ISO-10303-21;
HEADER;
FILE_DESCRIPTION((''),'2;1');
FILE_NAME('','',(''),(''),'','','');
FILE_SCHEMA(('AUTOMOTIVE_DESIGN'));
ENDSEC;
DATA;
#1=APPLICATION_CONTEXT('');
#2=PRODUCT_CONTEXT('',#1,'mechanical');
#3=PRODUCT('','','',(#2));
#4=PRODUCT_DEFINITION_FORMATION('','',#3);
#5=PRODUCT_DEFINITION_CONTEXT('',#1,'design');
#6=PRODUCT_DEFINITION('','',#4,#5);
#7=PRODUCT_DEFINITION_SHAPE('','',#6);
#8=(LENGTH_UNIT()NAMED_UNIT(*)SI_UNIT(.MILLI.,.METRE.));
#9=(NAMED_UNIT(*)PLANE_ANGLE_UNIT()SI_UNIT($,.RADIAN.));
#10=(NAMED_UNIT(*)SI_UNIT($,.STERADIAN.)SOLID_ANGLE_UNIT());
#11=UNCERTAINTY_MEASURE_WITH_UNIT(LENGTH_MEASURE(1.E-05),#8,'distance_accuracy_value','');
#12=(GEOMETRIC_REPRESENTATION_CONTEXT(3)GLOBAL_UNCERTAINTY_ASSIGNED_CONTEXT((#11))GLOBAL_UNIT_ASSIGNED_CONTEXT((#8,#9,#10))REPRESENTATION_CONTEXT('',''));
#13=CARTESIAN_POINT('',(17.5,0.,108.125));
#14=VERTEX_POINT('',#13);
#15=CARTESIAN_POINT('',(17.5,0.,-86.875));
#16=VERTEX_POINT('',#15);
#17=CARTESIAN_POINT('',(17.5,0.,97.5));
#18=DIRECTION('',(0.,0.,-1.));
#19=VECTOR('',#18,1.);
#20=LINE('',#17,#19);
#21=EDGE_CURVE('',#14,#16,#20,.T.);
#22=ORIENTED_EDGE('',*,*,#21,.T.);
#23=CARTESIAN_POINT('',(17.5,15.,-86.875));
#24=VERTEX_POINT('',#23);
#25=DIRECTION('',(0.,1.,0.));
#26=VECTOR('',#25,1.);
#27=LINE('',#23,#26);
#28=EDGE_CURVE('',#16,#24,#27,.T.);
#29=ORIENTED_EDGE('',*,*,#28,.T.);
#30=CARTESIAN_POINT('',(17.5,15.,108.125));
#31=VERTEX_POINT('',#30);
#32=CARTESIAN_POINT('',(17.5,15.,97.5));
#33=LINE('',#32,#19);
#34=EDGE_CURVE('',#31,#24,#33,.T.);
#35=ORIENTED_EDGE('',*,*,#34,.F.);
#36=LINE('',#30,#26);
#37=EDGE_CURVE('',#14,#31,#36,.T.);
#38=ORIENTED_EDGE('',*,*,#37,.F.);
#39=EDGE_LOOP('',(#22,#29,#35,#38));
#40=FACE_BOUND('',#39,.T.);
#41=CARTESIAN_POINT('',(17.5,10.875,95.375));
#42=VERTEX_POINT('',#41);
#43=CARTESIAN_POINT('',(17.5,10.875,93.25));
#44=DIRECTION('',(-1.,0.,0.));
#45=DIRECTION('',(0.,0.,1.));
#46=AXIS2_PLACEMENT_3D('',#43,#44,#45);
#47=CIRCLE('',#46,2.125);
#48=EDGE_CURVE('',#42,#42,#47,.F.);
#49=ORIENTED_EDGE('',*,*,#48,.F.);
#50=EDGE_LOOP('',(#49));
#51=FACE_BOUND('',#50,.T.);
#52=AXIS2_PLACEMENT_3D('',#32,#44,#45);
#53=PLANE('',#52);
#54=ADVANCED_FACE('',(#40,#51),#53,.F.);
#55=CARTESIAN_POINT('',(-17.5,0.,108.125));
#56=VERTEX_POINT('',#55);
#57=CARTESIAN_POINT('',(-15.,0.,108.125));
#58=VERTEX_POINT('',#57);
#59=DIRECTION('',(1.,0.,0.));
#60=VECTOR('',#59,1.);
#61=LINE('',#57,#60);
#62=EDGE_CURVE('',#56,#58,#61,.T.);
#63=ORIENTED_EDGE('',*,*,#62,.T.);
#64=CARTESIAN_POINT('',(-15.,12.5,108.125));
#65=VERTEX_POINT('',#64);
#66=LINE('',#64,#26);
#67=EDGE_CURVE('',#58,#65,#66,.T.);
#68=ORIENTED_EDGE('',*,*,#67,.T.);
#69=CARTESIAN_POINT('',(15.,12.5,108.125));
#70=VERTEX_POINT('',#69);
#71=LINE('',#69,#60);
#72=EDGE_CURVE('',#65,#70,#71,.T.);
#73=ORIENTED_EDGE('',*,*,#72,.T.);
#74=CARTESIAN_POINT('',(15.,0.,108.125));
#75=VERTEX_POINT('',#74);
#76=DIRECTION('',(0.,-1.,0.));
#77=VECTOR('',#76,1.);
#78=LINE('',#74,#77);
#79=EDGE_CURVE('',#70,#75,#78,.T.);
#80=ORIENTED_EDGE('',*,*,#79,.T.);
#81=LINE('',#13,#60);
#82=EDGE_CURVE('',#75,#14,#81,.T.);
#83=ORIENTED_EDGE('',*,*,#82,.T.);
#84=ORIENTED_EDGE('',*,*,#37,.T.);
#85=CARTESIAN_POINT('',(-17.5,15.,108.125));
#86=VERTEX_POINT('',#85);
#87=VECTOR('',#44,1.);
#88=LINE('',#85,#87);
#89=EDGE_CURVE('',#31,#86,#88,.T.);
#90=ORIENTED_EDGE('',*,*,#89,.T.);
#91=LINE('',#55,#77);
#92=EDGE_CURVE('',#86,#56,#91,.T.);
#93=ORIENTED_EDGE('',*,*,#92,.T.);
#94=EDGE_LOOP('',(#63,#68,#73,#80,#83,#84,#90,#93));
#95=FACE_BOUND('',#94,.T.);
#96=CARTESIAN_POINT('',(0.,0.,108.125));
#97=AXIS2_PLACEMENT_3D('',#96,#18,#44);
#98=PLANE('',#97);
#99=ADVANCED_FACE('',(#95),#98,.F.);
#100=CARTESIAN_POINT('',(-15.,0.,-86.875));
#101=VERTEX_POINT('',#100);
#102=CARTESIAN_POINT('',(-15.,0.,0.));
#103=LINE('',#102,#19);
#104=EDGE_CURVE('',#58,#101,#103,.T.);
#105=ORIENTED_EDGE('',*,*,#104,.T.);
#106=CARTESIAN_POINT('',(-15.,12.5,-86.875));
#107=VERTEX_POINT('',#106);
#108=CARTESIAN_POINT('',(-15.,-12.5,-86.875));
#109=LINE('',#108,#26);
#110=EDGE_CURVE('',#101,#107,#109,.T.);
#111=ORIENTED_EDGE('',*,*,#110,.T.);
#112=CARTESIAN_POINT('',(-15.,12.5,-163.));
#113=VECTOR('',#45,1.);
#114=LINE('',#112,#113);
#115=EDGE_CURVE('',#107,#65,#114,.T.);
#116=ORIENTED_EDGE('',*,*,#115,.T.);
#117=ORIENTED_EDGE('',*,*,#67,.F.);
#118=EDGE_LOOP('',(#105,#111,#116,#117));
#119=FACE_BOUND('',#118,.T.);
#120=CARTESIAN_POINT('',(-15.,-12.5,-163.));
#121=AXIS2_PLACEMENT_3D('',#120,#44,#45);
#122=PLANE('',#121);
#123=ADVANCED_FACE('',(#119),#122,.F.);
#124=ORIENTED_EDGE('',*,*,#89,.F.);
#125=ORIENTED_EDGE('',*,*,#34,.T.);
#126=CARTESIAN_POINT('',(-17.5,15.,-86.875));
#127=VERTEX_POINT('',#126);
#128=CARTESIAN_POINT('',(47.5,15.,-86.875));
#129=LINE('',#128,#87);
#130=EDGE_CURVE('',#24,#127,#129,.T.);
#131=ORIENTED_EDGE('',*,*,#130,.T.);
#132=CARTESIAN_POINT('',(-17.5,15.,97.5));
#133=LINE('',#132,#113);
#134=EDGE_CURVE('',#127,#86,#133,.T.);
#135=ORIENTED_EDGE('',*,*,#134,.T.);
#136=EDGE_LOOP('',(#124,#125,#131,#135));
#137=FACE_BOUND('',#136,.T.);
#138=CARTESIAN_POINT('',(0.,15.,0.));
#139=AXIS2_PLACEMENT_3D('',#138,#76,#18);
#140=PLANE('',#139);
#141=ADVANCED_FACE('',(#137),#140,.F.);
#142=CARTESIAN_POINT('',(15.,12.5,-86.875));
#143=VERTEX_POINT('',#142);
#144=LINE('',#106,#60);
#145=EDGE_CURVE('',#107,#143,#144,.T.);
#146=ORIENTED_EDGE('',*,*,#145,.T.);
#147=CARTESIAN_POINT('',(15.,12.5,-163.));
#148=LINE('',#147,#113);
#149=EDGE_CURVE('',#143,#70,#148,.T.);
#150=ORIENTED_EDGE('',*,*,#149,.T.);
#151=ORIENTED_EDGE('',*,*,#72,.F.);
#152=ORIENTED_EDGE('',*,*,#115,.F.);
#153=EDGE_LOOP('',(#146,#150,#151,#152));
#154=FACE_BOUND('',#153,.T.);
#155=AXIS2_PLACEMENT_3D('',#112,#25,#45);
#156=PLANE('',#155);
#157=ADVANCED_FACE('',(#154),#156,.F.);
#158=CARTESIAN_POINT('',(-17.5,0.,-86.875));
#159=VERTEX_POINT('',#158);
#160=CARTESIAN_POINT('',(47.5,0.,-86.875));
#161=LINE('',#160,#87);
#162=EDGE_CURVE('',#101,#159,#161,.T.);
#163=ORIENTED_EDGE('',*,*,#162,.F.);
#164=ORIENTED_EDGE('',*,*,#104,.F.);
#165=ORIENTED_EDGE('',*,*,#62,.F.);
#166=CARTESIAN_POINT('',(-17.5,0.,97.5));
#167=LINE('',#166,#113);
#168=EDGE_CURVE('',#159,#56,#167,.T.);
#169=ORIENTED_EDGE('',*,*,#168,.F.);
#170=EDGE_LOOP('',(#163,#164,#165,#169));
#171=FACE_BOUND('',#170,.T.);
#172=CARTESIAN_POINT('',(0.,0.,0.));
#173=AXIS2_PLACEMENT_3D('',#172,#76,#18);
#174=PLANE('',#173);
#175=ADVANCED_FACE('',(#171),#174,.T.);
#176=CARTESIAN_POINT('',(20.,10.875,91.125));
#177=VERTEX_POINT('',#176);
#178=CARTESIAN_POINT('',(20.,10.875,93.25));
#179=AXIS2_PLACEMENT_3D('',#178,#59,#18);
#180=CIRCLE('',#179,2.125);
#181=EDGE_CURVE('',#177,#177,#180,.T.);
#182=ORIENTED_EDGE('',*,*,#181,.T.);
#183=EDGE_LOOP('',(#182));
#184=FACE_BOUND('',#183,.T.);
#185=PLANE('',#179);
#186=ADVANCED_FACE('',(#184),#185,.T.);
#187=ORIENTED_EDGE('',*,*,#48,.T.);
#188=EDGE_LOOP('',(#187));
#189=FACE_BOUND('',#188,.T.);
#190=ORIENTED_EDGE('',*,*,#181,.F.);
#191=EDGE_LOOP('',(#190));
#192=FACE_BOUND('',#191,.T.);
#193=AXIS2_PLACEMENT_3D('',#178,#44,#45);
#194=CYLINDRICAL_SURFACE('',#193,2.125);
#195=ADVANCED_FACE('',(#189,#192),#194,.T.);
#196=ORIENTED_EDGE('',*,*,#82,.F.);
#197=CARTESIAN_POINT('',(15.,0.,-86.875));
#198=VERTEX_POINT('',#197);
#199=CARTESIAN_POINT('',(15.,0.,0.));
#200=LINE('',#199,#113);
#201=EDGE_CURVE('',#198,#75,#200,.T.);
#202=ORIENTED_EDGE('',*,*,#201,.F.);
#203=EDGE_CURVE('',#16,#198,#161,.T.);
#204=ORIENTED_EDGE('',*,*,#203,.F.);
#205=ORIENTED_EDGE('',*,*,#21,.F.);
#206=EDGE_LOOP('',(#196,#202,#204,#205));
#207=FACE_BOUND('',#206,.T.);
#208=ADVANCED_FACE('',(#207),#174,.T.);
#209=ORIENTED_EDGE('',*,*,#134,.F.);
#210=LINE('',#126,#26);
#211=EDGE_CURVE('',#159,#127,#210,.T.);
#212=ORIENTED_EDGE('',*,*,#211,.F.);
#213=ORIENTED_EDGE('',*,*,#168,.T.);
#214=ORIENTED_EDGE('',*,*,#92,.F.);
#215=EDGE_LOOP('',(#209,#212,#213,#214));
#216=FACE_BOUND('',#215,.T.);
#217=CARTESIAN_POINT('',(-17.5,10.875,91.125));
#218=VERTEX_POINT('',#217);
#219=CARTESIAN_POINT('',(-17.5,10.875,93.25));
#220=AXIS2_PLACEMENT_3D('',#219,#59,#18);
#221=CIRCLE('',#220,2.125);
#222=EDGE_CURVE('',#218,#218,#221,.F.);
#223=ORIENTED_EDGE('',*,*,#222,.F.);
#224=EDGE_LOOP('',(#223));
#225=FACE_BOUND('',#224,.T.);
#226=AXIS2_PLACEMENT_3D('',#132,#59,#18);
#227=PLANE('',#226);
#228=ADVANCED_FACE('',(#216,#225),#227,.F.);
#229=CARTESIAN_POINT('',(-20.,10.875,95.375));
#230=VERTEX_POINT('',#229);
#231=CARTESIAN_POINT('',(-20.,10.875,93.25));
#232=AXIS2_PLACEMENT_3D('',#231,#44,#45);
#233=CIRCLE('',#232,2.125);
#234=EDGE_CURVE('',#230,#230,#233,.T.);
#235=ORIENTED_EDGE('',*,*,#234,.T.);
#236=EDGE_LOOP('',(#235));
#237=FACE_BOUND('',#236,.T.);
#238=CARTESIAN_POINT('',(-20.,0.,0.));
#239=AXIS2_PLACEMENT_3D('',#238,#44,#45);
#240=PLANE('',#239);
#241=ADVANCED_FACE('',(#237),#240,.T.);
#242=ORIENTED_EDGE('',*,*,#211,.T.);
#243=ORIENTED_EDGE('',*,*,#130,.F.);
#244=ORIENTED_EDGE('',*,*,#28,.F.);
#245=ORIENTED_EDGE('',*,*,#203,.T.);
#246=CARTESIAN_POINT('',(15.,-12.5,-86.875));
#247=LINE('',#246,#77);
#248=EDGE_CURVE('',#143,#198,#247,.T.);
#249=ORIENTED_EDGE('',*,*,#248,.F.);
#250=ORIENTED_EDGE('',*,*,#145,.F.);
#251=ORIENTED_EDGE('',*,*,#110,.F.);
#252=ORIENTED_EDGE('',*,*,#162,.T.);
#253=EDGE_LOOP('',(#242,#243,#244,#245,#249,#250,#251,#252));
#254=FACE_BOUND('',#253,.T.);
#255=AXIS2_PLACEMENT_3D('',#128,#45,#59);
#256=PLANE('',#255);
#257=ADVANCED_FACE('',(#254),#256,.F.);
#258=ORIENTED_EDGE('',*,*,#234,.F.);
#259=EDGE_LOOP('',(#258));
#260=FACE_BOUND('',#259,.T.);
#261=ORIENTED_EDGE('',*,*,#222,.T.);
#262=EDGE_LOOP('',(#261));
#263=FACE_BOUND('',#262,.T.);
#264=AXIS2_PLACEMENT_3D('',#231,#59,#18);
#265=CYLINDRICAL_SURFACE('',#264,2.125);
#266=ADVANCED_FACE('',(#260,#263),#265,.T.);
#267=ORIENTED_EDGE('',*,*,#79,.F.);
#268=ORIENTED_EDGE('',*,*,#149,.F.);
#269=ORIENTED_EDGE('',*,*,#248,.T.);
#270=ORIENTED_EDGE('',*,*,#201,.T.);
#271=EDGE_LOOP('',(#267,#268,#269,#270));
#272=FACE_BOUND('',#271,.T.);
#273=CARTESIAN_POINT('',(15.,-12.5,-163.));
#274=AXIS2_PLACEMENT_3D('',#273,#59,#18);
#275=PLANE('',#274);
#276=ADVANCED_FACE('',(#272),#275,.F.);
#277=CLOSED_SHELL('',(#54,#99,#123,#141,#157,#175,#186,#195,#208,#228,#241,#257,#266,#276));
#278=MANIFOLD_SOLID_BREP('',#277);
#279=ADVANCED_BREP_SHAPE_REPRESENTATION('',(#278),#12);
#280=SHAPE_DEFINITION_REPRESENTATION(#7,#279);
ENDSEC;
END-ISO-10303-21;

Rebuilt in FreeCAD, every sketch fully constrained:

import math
import FreeCAD as App
import Part
import Sketcher
from FreeCAD import Vector
Q = App.Units.Quantity


def add_polygon(sketch, points):
    """Adds a closed chain of lines whose ends are joined by coincident constraints."""
    first, n = sketch.GeometryCount, len(points)
    for a, b in zip(points, points[1:] + points[:1]):
        sketch.addGeometry(Part.LineSegment(App.Vector(*a, 0), App.Vector(*b, 0)), False)
    for i in range(n):
        sketch.addConstraint(Sketcher.Constraint("Coincident", first + i, 2, first + (i + 1) % n, 1))

doc = App.newDocument("Part")
body = doc.addObject("PartDesign::Body", "Body")

# Sketch on XZ plane
sketch1 = doc.addObject("Sketcher::SketchObject", "Sketch")
body.addObject(sketch1)
sketch1.AttachmentSupport = (doc.XZ_Plane, [""])
sketch1.MapMode = "FlatFace"
add_polygon(sketch1, [(-17.5, -97.5), (-17.5, 97.5), (17.5, 97.5), (17.5, -97.5)])  # lines 0-3
sketch1.addConstraint([
    Sketcher.Constraint("Vertical", 0),
    Sketcher.Constraint("Horizontal", 1),
    Sketcher.Constraint("Vertical", 2),
    Sketcher.Constraint("Horizontal", 3),
    Sketcher.Constraint("Symmetric", 0, 2, 2, 2, -1, 1),
    Sketcher.Constraint("DistanceX", 1, 1, 1, 2, Q("35 mm")),
    Sketcher.Constraint("DistanceY", 0, 1, 0, 2, Q("195 mm")),
])
pad1 = doc.addObject("PartDesign::Pad", "Pad")
body.addObject(pad1)
pad1.Profile = sketch1
pad1.Length = 15
pad1.Reversed = True

# Sketch on YZ plane
sketch2 = doc.addObject("Sketcher::SketchObject", "Sketch001")
body.addObject(sketch2)
sketch2.AttachmentSupport = (doc.YZ_Plane, [""])
sketch2.MapMode = "FlatFace"
sketch2.AttachmentOffset = App.Placement(Vector(0, 0, -17.5), App.Rotation())
sketch2.addGeometry([
    Part.ArcOfCircle(Part.Circle(Vector(10.875, 93.25, 0), Vector(0, 0, 1), 2.125), math.radians(0), math.radians(90)),
    Part.ArcOfCircle(Part.Circle(Vector(10.875, 93.25, 0), Vector(0, 0, 1), 2.125), math.radians(180), math.radians(360)),
    Part.ArcOfCircle(Part.Circle(Vector(10.875, 93.25, 0), Vector(0, 0, 1), 2.125), math.radians(90), math.radians(180)),
], False)
sketch2.addConstraint([
    Sketcher.Constraint("Tangent", 0, 1, 1, 2),
    Sketcher.Constraint("Tangent", 1, 1, 2, 2),
    Sketcher.Constraint("Tangent", 2, 1, 0, 2),
    Sketcher.Constraint("Horizontal", 2, 3, 0, 1),
    Sketcher.Constraint("Horizontal", 0, 1, 1, 1),
    Sketcher.Constraint("Vertical", 1, 3, 2, 1),
    Sketcher.Constraint("DistanceX", -1, 1, 0, 1, Q("13 mm")),
    Sketcher.Constraint("Radius", 0, Q("2.125 mm")),
    Sketcher.Constraint("DistanceY", -1, 1, 0, 3, Q("93.25 mm")),
])
pad2 = doc.addObject("PartDesign::Pad", "Pad001")
body.addObject(pad2)
pad2.Profile = sketch2
pad2.Length = 2.5
pad2.Reversed = True

# Sketch on YZ plane
sketch3 = doc.addObject("Sketcher::SketchObject", "Sketch002")
body.addObject(sketch3)
sketch3.AttachmentSupport = (doc.YZ_Plane, [""])
sketch3.MapMode = "FlatFace"
sketch3.AttachmentOffset = App.Placement(Vector(0, 0, 20), App.Rotation())
sketch3.addGeometry(Part.Circle(Vector(10.875, 93.25, 0), Vector(0, 0, 1), 2.125), False)
sketch3.addConstraint([
    Sketcher.Constraint("Diameter", 0, Q("4.25 mm")),
    Sketcher.Constraint("DistanceY", -1, 1, 0, 3, Q("93.25 mm")),
    Sketcher.Constraint("DistanceX", -1, 1, 0, 3, Q("10.875 mm")),
])
pad3 = doc.addObject("PartDesign::Pad", "Pad002")
body.addObject(pad3)
pad3.Profile = sketch3
pad3.Length = 2.5
pad3.Reversed = True

# Sketch on XY plane
sketch4 = doc.addObject("Sketcher::SketchObject", "Sketch003")
body.addObject(sketch4)
sketch4.AttachmentSupport = (doc.XY_Plane, [""])
sketch4.MapMode = "FlatFace"
sketch4.AttachmentOffset = App.Placement(Vector(0, 0, 97.5), App.Rotation())
add_polygon(sketch4, [(-15, 12.5), (-15, -12.5), (15, -12.5), (15, 12.5)])  # lines 0-3
sketch4.addConstraint([
    Sketcher.Constraint("Vertical", 0),
    Sketcher.Constraint("Horizontal", 1),
    Sketcher.Constraint("Vertical", 2),
    Sketcher.Constraint("Horizontal", 3),
    Sketcher.Constraint("Symmetric", 0, 2, 2, 2, -1, 1),
    Sketcher.Constraint("DistanceX", 1, 1, 1, 2, Q("30 mm")),
    Sketcher.Constraint("DistanceY", 0, 2, 0, 1, Q("25 mm")),
])
pocket1 = doc.addObject("PartDesign::Pocket", "Pocket")
body.addObject(pocket1)
pocket1.Profile = sketch4
pocket1.Length = 260.5

# Sketch on YZ plane
sketch5 = doc.addObject("Sketcher::SketchObject", "Sketch004")
body.addObject(sketch5)
sketch5.AttachmentSupport = (doc.YZ_Plane, [""])
sketch5.MapMode = "FlatFace"
sketch5.AttachmentOffset = App.Placement(Vector(0, 0, -17.5), App.Rotation())
add_polygon(sketch5, [(15, -97.5), (0, -97.5), (0, -86.875), (15, -86.875)])  # lines 0-3
sketch5.addConstraint([
    Sketcher.Constraint("Horizontal", 0),
    Sketcher.Constraint("Vertical", 1),
    Sketcher.Constraint("Horizontal", 2),
    Sketcher.Constraint("Vertical", 3),
    Sketcher.Constraint("PointOnObject", 0, 2, -2),
    Sketcher.Constraint("DistanceX", 0, 2, 0, 1, Q("15 mm")),
    Sketcher.Constraint("DistanceY", 0, 2, -1, 1, Q("97.5 mm")),
    Sketcher.Constraint("DistanceY", 1, 1, 1, 2, Q("10.625 mm")),
])
pocket2 = doc.addObject("PartDesign::Pocket", "Pocket001")
body.addObject(pocket2)
pocket2.Profile = sketch5
pocket2.Length = 65
pocket2.Reversed = True

# Sketch on XY plane
sketch6 = doc.addObject("Sketcher::SketchObject", "Sketch005")
body.addObject(sketch6)
sketch6.AttachmentSupport = (doc.XY_Plane, [""])
sketch6.MapMode = "FlatFace"
sketch6.AttachmentOffset = App.Placement(Vector(0, 0, 97.5), App.Rotation())
add_polygon(sketch6, [(17.5, 15), (-17.5, 15), (-17.5, 0), (-15, 0), (-15, 12.5), (15, 12.5), (15, 0), (17.5, 0)])  # lines 0-7
sketch6.addConstraint([
    Sketcher.Constraint("Horizontal", 0),
    Sketcher.Constraint("Vertical", 1),
    Sketcher.Constraint("Horizontal", 2),
    Sketcher.Constraint("Vertical", 3),
    Sketcher.Constraint("Horizontal", 4),
    Sketcher.Constraint("Vertical", 5),
    Sketcher.Constraint("Horizontal", 6),
    Sketcher.Constraint("Vertical", 7),
    Sketcher.Constraint("Symmetric", 2, 2, 5, 2, -1, 1),
    Sketcher.Constraint("Symmetric", 1, 2, 6, 2, -2),
    Sketcher.Constraint("DistanceX", 0, 2, 0, 1, Q("35 mm")),
    Sketcher.Constraint("DistanceX", 4, 1, 4, 2, Q("30 mm")),
    Sketcher.Constraint("DistanceY", 1, 2, 1, 1, Q("15 mm")),
    Sketcher.Constraint("DistanceY", 3, 1, 3, 2, Q("12.5 mm")),
])
pad4 = doc.addObject("PartDesign::Pad", "Pad003")
body.addObject(pad4)
pad4.Profile = sketch6
pad4.Length = 10.625

doc.recompute()
